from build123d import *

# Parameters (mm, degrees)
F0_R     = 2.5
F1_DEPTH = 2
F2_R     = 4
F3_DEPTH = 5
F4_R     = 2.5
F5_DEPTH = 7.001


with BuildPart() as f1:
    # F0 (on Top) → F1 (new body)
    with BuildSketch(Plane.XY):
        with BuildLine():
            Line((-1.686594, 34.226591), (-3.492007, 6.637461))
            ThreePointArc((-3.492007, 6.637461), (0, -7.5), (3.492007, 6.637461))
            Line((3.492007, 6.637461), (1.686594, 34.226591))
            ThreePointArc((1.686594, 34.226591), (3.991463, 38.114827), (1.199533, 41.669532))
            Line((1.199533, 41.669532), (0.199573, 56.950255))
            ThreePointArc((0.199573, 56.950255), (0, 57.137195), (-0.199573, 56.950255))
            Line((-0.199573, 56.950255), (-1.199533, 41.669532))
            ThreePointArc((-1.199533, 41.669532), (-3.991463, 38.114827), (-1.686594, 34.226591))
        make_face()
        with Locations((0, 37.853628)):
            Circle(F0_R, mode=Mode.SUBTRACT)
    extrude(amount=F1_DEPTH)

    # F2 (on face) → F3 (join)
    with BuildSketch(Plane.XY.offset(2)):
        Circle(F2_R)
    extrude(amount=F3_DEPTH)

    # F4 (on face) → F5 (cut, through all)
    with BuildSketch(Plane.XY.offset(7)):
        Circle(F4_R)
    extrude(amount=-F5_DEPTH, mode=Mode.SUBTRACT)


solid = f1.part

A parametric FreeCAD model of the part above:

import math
import FreeCAD as App
import Part
import Sketcher
from FreeCAD import Vector
Q = App.Units.Quantity

doc = App.newDocument("Part")
body = doc.addObject("PartDesign::Body", "Body")

# Sketch on XY plane
sketch1 = body.newObject("Sketcher::SketchObject", "Sketch")
sketch1.AttachmentSupport = (doc.getObject("XY_Plane"), [""])
sketch1.MapMode = "FlatFace"
sketch1.addGeometry([
    Part.LineSegment(Vector(-1.686594, 34.226591, 0), Vector(-3.492007, 6.637461, 0)),  # 0
    Part.ArcOfCircle(Part.Circle(Vector(0, 0, 0), Vector(0, 0, 1), 7.5), math.radians(117.74912), math.radians(422.25088)),  # 1
    Part.LineSegment(Vector(3.492007, 6.637461, 0), Vector(1.686594, 34.226591, 0)),  # 2
    Part.ArcOfCircle(Part.Circle(Vector(0, 37.853628, 0), Vector(0, 0, 1), 4), math.radians(-65.061297), math.radians(72.549414)),  # 3
    Part.LineSegment(Vector(1.199533, 41.669532, 0), Vector(0.199573, 56.950255, 0)),  # 4
    Part.ArcOfCircle(Part.Circle(Vector(0, 56.937195, 0), Vector(0, 0, 1), 0.2), math.radians(3.74404), math.radians(176.25596)),  # 5
    Part.LineSegment(Vector(-0.199573, 56.950255, 0), Vector(-1.199533, 41.669532, 0)),  # 6
    Part.ArcOfCircle(Part.Circle(Vector(0, 37.853628, 0), Vector(0, 0, 1), 4), math.radians(107.450586), math.radians(245.061297)),  # 7
    Part.Circle(Vector(0, 37.853628, 0), Vector(0, 0, 1), 2.5),  # 8
], False)
sketch1.addConstraint([
    Sketcher.Constraint("Coincident", 0, 2, 1, 1),
    Sketcher.Constraint("Coincident", 1, 2, 2, 1),
    Sketcher.Constraint("Coincident", 2, 2, 3, 1),
    Sketcher.Constraint("Coincident", 3, 2, 4, 1),
    Sketcher.Constraint("Tangent", 4, 2, 5, 1),
    Sketcher.Constraint("Tangent", 5, 2, 6, 1),
    Sketcher.Constraint("Coincident", 6, 2, 7, 1),
    Sketcher.Constraint("Coincident", 7, 2, 0, 1),
    Sketcher.Constraint("Coincident", 1, 3, -1, 1),
    Sketcher.Constraint("Coincident", 7, 3, 3, 3),
    Sketcher.Constraint("Coincident", 8, 3, 3, 3),
    Sketcher.Constraint("Equal", 3, 7),
    Sketcher.Constraint("Symmetric", 4, 2, 5, 2, -2),
    Sketcher.Constraint("Symmetric", 2, 2, 7, 2, -2),
    Sketcher.Constraint("Parallel", 2, 4),
    Sketcher.Constraint("Parallel", 0, 6),
    Sketcher.Constraint("Diameter", 8, Q("5 mm")),
    Sketcher.Constraint("Radius", 3, Q("4 mm")),
    Sketcher.Constraint("Radius", 1, Q("7.5 mm")),
    Sketcher.Constraint("Radius", 5, Q("0.2 mm")),
    Sketcher.Constraint("Distance", 0, Q("27.648139 mm")),
    Sketcher.Constraint("DistanceY", -1, 1, 3, 3, Q("37.853628 mm")),
    Sketcher.Constraint("DistanceY", -1, 1, 0, 2, Q("6.637461 mm")),
    Sketcher.Constraint("DistanceY", -1, 1, 3, 2, Q("41.669532 mm")),
])
pad1 = body.newObject("PartDesign::Pad", "Pad")
pad1.Profile = sketch1
pad1.Length = 2

# Sketch on XY plane
sketch2 = body.newObject("Sketcher::SketchObject", "Sketch001")
sketch2.AttachmentSupport = (doc.getObject("XY_Plane"), [""])
sketch2.MapMode = "FlatFace"
sketch2.AttachmentOffset = App.Placement(Vector(0, 0, 2), App.Rotation())
sketch2.addGeometry(Part.Circle(Vector(0, 0, 0), Vector(0, 0, 1), 4), False)
sketch2.addConstraint([
    Sketcher.Constraint("Coincident", 0, 3, -1, 1),
    Sketcher.Constraint("Diameter", 0, Q("8 mm")),
])
pad2 = body.newObject("PartDesign::Pad", "Pad001")
pad2.Profile = sketch2
pad2.Length = 5

# Sketch on XY plane
sketch3 = body.newObject("Sketcher::SketchObject", "Sketch002")
sketch3.AttachmentSupport = (doc.getObject("XY_Plane"), [""])
sketch3.MapMode = "FlatFace"
sketch3.AttachmentOffset = App.Placement(Vector(0, 0, 7), App.Rotation())
sketch3.addGeometry(Part.Circle(Vector(0, 0, 0), Vector(0, 0, 1), 2.5), False)
sketch3.addConstraint([
    Sketcher.Constraint("Coincident", 0, 3, -1, 1),
    Sketcher.Constraint("Diameter", 0, Q("5 mm")),
])
pocket1 = body.newObject("PartDesign::Pocket", "Pocket")
pocket1.Profile = sketch3
pocket1.Type = "ThroughAll"

doc.recompute()
